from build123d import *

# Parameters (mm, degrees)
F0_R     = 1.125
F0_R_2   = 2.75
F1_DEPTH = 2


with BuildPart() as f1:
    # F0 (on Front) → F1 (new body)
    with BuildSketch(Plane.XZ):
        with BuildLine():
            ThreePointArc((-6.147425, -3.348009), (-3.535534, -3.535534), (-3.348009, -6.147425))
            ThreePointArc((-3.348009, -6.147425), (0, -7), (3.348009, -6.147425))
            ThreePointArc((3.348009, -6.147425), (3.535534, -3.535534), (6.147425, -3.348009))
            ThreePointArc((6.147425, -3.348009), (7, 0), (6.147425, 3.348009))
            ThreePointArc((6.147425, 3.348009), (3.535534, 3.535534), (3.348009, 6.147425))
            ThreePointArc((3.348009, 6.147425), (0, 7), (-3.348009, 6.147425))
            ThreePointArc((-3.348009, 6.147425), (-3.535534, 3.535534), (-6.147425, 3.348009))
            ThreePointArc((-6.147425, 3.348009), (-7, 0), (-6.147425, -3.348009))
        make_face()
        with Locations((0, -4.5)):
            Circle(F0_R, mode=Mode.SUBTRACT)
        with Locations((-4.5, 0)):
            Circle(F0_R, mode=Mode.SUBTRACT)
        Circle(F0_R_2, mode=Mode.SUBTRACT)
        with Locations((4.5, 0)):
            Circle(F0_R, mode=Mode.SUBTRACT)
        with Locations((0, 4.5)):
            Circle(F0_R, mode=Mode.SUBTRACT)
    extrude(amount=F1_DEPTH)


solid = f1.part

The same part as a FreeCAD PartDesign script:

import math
import FreeCAD as App
import Part
import Sketcher
from FreeCAD import Vector

doc = App.newDocument("Part")
body = doc.addObject("PartDesign::Body", "Body")

sketch1 = body.newObject("Sketcher::SketchObject", "Sketch")
sketch1.AttachmentSupport = (doc.getObject("XZ_Plane"), [""])
sketch1.MapMode = "FlatFace"
sketch1.addGeometry(Part.ArcOfCircle(Part.Circle(Vector(-4.9, -4.9, 0), Vector(0, 0, 1), 2), math.radians(-37), math.radians(127)), False)
sketch1.addGeometry(Part.ArcOfCircle(Part.Circle(Vector(0, 0, 0), Vector(0, 0, 1), 7), math.radians(-119), math.radians(-61)), False)
sketch1.addGeometry(Part.ArcOfCircle(Part.Circle(Vector(4.9, -4.9, 0), Vector(0, 0, 1), 2), math.radians(53), math.radians(217)), False)
sketch1.addGeometry(Part.ArcOfCircle(Part.Circle(Vector(0, 0, 0), Vector(0, 0, 1), 7), math.radians(-29), math.radians(29)), False)
sketch1.addGeometry(Part.ArcOfCircle(Part.Circle(Vector(4.9, 4.9, 0), Vector(0, 0, 1), 2), math.radians(143), math.radians(307)), False)
sketch1.addGeometry(Part.ArcOfCircle(Part.Circle(Vector(0, 0, 0), Vector(0, 0, 1), 7), math.radians(61), math.radians(119)), False)
sketch1.addGeometry(Part.ArcOfCircle(Part.Circle(Vector(-4.9, 4.9, 0), Vector(0, 0, 1), 2), math.radians(-127), math.radians(37)), False)
sketch1.addGeometry(Part.ArcOfCircle(Part.Circle(Vector(0, 0, 0), Vector(0, 0, 1), 7), math.radians(151), math.radians(209)), False)
sketch1.addGeometry(Part.Circle(Vector(0, -4.5, 0), Vector(0, 0, 1), 1.1), False)
sketch1.addGeometry(Part.Circle(Vector(-4.5, 0, 0), Vector(0, 0, 1), 1.1), False)
sketch1.addGeometry(Part.Circle(Vector(0, 0, 0), Vector(0, 0, 1), 2.8), False)
sketch1.addGeometry(Part.Circle(Vector(4.5, 0, 0), Vector(0, 0, 1), 1.1), False)
sketch1.addGeometry(Part.Circle(Vector(0, 4.5, 0), Vector(0, 0, 1), 1.1), False)
sketch1.addConstraint(Sketcher.Constraint("Coincident", 0, 1, 1, 1))
sketch1.addConstraint(Sketcher.Constraint("Coincident", 1, 2, 2, 2))
sketch1.addConstraint(Sketcher.Constraint("Coincident", 2, 1, 3, 1))
sketch1.addConstraint(Sketcher.Constraint("Coincident", 3, 2, 4, 2))
sketch1.addConstraint(Sketcher.Constraint("Coincident", 4, 1, 5, 1))
sketch1.addConstraint(Sketcher.Constraint("Coincident", 5, 2, 6, 2))
sketch1.addConstraint(Sketcher.Constraint("Coincident", 6, 1, 7, 1))
sketch1.addConstraint(Sketcher.Constraint("Coincident", 7, 2, 0, 2))
sketch1.addConstraint(Sketcher.Constraint("Coincident", 1, 3, -1, 1))
sketch1.addConstraint(Sketcher.Constraint("Coincident", 3, 3, -1, 1))
sketch1.addConstraint(Sketcher.Constraint("Coincident", 5, 3, -1, 1))
sketch1.addConstraint(Sketcher.Constraint("Coincident", 7, 3, -1, 1))
sketch1.addConstraint(Sketcher.Constraint("Coincident", 10, 3, -1, 1))
sketch1.addConstraint(Sketcher.Constraint("Equal", 0, 2))
sketch1.addConstraint(Sketcher.Constraint("Equal", 1, 3))
sketch1.addConstraint(Sketcher.Constraint("Equal", 2, 4))
sketch1.addConstraint(Sketcher.Constraint("Equal", 3, 5))
sketch1.addConstraint(Sketcher.Constraint("Equal", 4, 6))
sketch1.addConstraint(Sketcher.Constraint("Equal", 5, 7))
sketch1.addConstraint(Sketcher.Constraint("Equal", 8, 9))
sketch1.addConstraint(Sketcher.Constraint("Equal", 9, 11))
sketch1.addConstraint(Sketcher.Constraint("Equal", 11, 12))
sketch1.addConstraint(Sketcher.Constraint("Symmetric", 0, 3, 4, 3, -1, 1))
sketch1.addConstraint(Sketcher.Constraint("Symmetric", 2, 3, 6, 3, -1, 1))
sketch1.addConstraint(Sketcher.Constraint("Symmetric", 9, 3, 11, 3, -1, 1))
sketch1.addConstraint(Sketcher.Constraint("Symmetric", 8, 3, 12, 3, -1, 1))
sketch1.addConstraint(Sketcher.Constraint("Symmetric", 0, 3, 2, 3, -2))
sketch1.addConstraint(Sketcher.Constraint("PointOnObject", 8, 3, -2))
sketch1.addConstraint(Sketcher.Constraint("PointOnObject", 9, 3, -1))
sketch1.addConstraint(Sketcher.Constraint("Radius", 0, 1.999999))
sketch1.addConstraint(Sketcher.Constraint("Radius", 1, 6.999999))
sketch1.addConstraint(Sketcher.Constraint("Diameter", 10, 5.5))
sketch1.addConstraint(Sketcher.Constraint("Diameter", 8, 2.25))
sketch1.addConstraint(Sketcher.Constraint("DistanceY", 8, 3, -1, 1, 4.5))
sketch1.addConstraint(Sketcher.Constraint("DistanceX", 9, 3, -1, 1, 4.5))
sketch1.addConstraint(Sketcher.Constraint("DistanceX", 0, 1, -1, 1, 3.348009))
sketch1.addConstraint(Sketcher.Constraint("DistanceY", 2, 1, -1, 1, 3.348009))
pad1 = body.newObject("PartDesign::Pad", "Pad")
pad1.Profile = sketch1
pad1.Length = 2

doc.recompute()
